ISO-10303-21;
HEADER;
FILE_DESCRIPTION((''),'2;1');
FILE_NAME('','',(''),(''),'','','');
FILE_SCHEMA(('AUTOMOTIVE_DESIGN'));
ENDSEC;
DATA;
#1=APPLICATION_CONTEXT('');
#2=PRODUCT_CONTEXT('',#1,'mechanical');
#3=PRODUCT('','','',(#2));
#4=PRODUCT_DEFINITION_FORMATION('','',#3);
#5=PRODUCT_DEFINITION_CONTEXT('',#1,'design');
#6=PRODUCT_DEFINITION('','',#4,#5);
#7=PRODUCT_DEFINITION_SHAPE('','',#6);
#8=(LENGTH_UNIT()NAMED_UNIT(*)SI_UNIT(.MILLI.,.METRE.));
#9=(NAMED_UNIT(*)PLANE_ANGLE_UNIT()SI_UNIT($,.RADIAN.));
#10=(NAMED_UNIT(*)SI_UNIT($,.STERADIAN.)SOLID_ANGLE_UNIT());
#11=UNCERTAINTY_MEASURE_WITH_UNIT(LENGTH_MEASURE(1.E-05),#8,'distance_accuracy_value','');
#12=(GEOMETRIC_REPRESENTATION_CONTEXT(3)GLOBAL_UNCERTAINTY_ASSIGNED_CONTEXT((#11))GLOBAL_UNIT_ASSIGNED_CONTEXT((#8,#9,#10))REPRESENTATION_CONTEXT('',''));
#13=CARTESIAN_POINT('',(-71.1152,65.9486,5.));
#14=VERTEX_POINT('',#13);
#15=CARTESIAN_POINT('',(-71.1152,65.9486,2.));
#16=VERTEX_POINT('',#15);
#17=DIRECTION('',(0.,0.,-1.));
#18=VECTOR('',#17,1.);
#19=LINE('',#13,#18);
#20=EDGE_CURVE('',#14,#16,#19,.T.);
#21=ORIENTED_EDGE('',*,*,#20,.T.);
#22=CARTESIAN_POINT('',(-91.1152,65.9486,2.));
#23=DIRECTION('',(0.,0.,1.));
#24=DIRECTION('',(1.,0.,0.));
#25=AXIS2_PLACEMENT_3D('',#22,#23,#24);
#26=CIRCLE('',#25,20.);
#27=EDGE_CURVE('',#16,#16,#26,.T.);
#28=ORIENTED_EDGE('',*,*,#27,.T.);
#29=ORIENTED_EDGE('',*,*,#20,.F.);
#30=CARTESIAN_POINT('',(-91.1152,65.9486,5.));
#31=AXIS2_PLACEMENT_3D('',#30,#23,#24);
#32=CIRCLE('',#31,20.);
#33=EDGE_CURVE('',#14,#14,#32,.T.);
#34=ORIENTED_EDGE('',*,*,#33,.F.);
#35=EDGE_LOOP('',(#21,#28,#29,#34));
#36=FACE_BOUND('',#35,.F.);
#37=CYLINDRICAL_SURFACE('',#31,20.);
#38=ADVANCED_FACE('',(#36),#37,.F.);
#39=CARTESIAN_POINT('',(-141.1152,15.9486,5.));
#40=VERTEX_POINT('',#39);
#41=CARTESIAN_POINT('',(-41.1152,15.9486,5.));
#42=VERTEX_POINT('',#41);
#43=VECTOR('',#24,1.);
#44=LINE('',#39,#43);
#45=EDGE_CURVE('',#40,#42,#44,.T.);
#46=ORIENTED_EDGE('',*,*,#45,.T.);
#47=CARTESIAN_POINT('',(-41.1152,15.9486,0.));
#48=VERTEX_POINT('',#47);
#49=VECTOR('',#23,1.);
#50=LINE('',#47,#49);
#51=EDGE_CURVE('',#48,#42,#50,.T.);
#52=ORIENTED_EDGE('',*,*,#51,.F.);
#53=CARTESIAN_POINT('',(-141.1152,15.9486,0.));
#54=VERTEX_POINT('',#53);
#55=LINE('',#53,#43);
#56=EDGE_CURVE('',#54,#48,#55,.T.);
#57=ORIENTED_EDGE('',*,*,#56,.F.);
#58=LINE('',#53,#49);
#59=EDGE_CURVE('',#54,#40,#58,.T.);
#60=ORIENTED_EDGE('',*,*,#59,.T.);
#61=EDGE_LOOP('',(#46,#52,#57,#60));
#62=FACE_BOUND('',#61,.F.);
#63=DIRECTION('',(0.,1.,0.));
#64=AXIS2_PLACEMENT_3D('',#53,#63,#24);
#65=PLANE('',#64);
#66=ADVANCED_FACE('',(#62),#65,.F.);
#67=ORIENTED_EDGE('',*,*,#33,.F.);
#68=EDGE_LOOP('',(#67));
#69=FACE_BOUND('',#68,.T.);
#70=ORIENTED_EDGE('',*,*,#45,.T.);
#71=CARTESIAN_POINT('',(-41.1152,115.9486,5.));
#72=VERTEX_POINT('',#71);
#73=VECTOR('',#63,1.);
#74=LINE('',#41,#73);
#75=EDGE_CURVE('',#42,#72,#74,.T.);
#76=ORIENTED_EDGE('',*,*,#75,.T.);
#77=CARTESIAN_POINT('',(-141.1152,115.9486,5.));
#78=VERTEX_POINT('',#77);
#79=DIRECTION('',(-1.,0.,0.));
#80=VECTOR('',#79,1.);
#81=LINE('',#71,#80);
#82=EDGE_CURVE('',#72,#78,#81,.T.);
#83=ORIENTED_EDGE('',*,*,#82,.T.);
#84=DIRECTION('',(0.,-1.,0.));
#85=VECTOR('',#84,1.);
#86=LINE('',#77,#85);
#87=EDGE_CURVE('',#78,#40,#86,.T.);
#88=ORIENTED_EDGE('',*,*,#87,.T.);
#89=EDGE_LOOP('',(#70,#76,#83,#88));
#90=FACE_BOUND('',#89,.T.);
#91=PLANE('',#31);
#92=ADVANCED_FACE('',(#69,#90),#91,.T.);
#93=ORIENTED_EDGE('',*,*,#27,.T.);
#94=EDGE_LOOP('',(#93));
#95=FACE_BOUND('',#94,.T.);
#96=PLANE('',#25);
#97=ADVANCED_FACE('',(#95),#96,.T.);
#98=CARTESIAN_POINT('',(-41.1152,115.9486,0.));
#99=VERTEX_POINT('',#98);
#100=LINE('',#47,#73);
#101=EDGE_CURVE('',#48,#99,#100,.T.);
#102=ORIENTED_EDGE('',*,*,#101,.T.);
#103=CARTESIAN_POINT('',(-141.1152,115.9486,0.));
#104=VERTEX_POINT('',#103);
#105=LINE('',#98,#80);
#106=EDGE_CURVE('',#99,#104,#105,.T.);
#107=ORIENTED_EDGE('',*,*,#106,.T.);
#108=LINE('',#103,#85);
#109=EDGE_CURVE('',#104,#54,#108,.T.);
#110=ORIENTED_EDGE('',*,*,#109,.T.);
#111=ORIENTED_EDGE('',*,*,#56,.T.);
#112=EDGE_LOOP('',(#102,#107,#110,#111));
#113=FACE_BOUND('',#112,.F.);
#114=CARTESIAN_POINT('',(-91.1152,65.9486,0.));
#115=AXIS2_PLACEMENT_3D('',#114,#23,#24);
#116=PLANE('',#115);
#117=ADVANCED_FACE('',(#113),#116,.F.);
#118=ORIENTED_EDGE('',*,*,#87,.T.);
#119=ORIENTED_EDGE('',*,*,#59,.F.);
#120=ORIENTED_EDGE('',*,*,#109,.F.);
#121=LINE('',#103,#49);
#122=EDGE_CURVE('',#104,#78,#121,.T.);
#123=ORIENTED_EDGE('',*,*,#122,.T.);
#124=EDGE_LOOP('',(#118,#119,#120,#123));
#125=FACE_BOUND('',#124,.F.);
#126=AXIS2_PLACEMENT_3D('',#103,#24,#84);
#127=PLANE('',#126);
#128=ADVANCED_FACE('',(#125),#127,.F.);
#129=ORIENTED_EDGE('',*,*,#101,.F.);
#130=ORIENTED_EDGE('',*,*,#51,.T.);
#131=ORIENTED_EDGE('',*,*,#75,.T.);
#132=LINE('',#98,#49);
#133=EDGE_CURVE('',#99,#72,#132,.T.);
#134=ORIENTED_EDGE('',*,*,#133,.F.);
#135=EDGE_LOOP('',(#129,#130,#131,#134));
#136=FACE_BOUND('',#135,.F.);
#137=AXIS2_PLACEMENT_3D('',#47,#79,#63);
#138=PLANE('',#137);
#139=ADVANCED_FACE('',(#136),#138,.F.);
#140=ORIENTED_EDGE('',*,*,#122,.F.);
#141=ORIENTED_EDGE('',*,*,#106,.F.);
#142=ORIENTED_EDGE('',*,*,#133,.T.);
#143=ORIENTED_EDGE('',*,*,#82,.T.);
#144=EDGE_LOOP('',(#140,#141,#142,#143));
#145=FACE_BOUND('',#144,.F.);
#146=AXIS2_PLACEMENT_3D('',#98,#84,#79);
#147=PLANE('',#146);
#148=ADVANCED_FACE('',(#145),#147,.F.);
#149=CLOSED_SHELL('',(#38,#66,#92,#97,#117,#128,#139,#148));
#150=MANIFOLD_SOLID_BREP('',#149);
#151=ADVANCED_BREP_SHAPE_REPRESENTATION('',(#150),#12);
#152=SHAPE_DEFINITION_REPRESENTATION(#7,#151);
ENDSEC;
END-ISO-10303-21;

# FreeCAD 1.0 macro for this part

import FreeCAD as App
import Part
import Sketcher

V = App.Vector


def add_polygon(sketch, points):
    """Adds a closed chain of lines whose ends are joined by coincident constraints."""
    first, n = sketch.GeometryCount, len(points)
    for a, b in zip(points, points[1:] + points[:1]):
        sketch.addGeometry(Part.LineSegment(App.Vector(*a, 0), App.Vector(*b, 0)), False)
    for i in range(n):
        sketch.addConstraint(Sketcher.Constraint("Coincident", first + i, 2, first + (i + 1) % n, 1))

doc = App.newDocument("Part")
params = doc.addObject("Spreadsheet::Sheet", "Params")
for row, (alias, value) in enumerate([
    ("sketch1_width", "100 mm"),
    ("pad1_length", "5 mm"),
    ("sketch2_diameter", "40 mm"),
    ("pocket1_length", "3 mm"),
], start=1):
    params.set(f"A{row}", alias)
    params.set(f"B{row}", "=" + value)
    params.setAlias(f"B{row}", alias)

body = doc.addObject("PartDesign::Body", "Body")

sketch1 = doc.addObject("Sketcher::SketchObject", "Sketch")
body.addObject(sketch1)
sketch1.AttachmentSupport = (doc.XY_Plane, [""])
sketch1.MapMode = "FlatFace"
add_polygon(sketch1, [(-141, 116), (-141, 16), (-41, 16), (-41, 116)])
sketch1.addConstraint(Sketcher.Constraint("Vertical", 0))
sketch1.addConstraint(Sketcher.Constraint("Horizontal", 1))
sketch1.addConstraint(Sketcher.Constraint("Vertical", 2))
sketch1.addConstraint(Sketcher.Constraint("Horizontal", 3))
sketch1.addConstraint(Sketcher.Constraint("Equal", 3, 0))
sketch1.addConstraint(Sketcher.Constraint("DistanceX", 1, 1, 1, 2, 100.0))
sketch1.addConstraint(Sketcher.Constraint("DistanceX", 0, 2, -1, 1, 141.1152))
sketch1.addConstraint(Sketcher.Constraint("DistanceY", -1, 1, 0, 2, 15.9486))
sketch1.setExpression("Constraints[9]", "Params.sketch1_width")
pad1 = doc.addObject("PartDesign::Pad", "Pad")
body.addObject(pad1)
pad1.Profile = sketch1
pad1.setExpression("Length", "Params.pad1_length")

sketch2 = doc.addObject("Sketcher::SketchObject", "Sketch001")
body.addObject(sketch2)
sketch2.AttachmentSupport = (doc.XY_Plane, [""])
sketch2.MapMode = "FlatFace"
sketch2.AttachmentOffset = App.Placement(V(0, 0, 5), App.Rotation())
sketch2.addGeometry(Part.Circle(V(-91, 66, 0), V(0, 0, 1), 20), False)
sketch2.addConstraint(Sketcher.Constraint("Diameter", 0, 40.0))
sketch2.addConstraint(Sketcher.Constraint("DistanceX", 0, 3, -1, 1, 91.1152))
sketch2.addConstraint(Sketcher.Constraint("DistanceY", -1, 1, 0, 3, 65.9486))
sketch2.setExpression("Constraints[0]", "Params.sketch2_diameter")
pocket1 = doc.addObject("PartDesign::Pocket", "Pocket")
body.addObject(pocket1)
pocket1.Profile = sketch2
pocket1.setExpression("Length", "Params.pocket1_length")

doc.recompute()
